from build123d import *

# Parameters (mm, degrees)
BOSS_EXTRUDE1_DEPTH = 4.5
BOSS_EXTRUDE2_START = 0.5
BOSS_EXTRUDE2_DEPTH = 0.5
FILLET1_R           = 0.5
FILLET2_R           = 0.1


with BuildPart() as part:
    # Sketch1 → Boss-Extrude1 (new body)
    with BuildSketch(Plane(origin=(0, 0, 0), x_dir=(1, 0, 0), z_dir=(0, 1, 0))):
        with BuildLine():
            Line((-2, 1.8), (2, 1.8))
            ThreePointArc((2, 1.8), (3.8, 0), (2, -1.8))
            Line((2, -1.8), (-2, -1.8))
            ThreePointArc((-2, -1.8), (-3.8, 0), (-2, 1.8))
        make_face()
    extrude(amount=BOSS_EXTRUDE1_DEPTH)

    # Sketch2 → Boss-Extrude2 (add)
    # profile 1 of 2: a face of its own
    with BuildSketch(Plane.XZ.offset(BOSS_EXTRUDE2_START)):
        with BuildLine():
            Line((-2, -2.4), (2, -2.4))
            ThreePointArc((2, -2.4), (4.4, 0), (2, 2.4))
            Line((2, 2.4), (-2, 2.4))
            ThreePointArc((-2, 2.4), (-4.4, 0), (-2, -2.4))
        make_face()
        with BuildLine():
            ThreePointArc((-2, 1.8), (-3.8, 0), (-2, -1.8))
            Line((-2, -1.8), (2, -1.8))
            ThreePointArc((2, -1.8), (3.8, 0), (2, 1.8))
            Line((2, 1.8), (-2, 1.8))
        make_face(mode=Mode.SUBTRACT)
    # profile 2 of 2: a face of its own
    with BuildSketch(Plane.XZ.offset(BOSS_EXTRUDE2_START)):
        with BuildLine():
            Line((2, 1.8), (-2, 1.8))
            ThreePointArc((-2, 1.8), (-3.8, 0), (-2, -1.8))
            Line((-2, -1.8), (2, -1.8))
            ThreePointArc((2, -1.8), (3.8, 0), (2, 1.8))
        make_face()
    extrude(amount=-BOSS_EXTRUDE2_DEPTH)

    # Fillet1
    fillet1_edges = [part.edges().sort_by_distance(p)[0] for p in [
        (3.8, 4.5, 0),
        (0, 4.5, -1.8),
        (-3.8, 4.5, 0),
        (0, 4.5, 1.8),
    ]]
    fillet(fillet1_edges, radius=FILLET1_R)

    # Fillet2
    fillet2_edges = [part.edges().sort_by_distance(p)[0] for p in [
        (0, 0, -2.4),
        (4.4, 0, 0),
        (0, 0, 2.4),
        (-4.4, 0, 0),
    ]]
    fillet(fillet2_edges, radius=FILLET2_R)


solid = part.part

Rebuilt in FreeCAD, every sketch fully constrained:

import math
import FreeCAD as App
import Part
import Sketcher


def edges_at(feature, points):
    """Names of the edges that pass closest to the given points."""
    edges = feature.Shape.Edges
    near = lambda p: min(range(len(edges)), key=lambda i: edges[i].distToShape(Part.Vertex(*p))[0])
    return sorted({f"Edge{near(p) + 1}" for p in points})

doc = App.newDocument("Part")
params = doc.addObject("Spreadsheet::Sheet", "Params")
for row, (alias, value) in enumerate([
    ("sketch1_radius", "1.8 mm"),
    ("sketch1_width", "4 mm"),
    ("pad1_length", "4.5 mm"),
    ("sketch2_radius", "2.4 mm"),
    ("sketch2_width", "4 mm"),
    ("pad2_length", "0.5 mm"),
    ("fillet_radius", "0.5 mm"),
    ("fillet2_radius", "0.1 mm"),
], start=1):
    params.set(f"A{row}", alias)
    params.set(f"B{row}", "=" + value)
    params.setAlias(f"B{row}", alias)

body = doc.addObject("PartDesign::Body", "Body")

sketch1 = body.newObject("Sketcher::SketchObject", "Sketch")
sketch1.AttachmentSupport = (doc.getObject("XZ_Plane"), [""])
sketch1.MapMode = "FlatFace"
sketch1.addGeometry([
    Part.LineSegment(App.Vector(2, -1.8, 0), App.Vector(-2, -1.8, 0)),
    Part.ArcOfCircle(Part.Circle(App.Vector(-2, 0, 0), App.Vector(0, 0, 1), 1.8), math.radians(90), math.radians(270)),
    Part.LineSegment(App.Vector(-2, 1.8, 0), App.Vector(2, 1.8, 0)),
    Part.ArcOfCircle(Part.Circle(App.Vector(2, 0, 0), App.Vector(0, 0, 1), 1.8), math.radians(-90), math.radians(90)),
], False)
sketch1.addConstraint([
    Sketcher.Constraint("Tangent", 0, 2, 1, 2),
    Sketcher.Constraint("Tangent", 1, 1, 2, 1),
    Sketcher.Constraint("Tangent", 2, 2, 3, 2),
    Sketcher.Constraint("Tangent", 3, 1, 0, 1),
    Sketcher.Constraint("Horizontal", 0),
    Sketcher.Constraint("Horizontal", 2),
    Sketcher.Constraint("Symmetric", 1, 3, 3, 3, -1, 1),
    Sketcher.Constraint("Radius", 1, 1.8),
    Sketcher.Constraint("DistanceX", 0, 2, 0, 1, 4.0),
])
sketch1.setExpression("Constraints[7]", "Params.sketch1_radius")
sketch1.setExpression("Constraints[8]", "Params.sketch1_width")
pad1 = body.newObject("PartDesign::Pad", "Pad")
pad1.Profile = sketch1
pad1.setExpression("Length", "Params.pad1_length")
pad1.Reversed = True

sketch2 = body.newObject("Sketcher::SketchObject", "Sketch001")
sketch2.AttachmentSupport = (doc.getObject("XZ_Plane"), [""])
sketch2.MapMode = "FlatFace"
sketch2.AttachmentOffset = App.Placement(App.Vector(0, 0, 0.5), App.Rotation())
sketch2.addGeometry([
    Part.LineSegment(App.Vector(-2, -2.4, 0), App.Vector(2, -2.4, 0)),
    Part.ArcOfCircle(Part.Circle(App.Vector(2, 0, 0), App.Vector(0, 0, 1), 2.4), math.radians(-90), math.radians(90)),
    Part.LineSegment(App.Vector(2, 2.4, 0), App.Vector(-2, 2.4, 0)),
    Part.ArcOfCircle(Part.Circle(App.Vector(-2, 0, 0), App.Vector(0, 0, 1), 2.4), math.radians(90), math.radians(270)),
], False)
sketch2.addConstraint([
    Sketcher.Constraint("Tangent", 0, 2, 1, 1),
    Sketcher.Constraint("Tangent", 1, 2, 2, 1),
    Sketcher.Constraint("Tangent", 2, 2, 3, 1),
    Sketcher.Constraint("Tangent", 3, 2, 0, 1),
    Sketcher.Constraint("Horizontal", 0),
    Sketcher.Constraint("Horizontal", 2),
    Sketcher.Constraint("Symmetric", 1, 3, 3, 3, -1, 1),
    Sketcher.Constraint("Radius", 1, 2.4),
    Sketcher.Constraint("DistanceX", 0, 1, 0, 2, 4.0),
])
sketch2.setExpression("Constraints[7]", "Params.sketch2_radius")
sketch2.setExpression("Constraints[8]", "Params.sketch2_width")
pad2 = body.newObject("PartDesign::Pad", "Pad001")
pad2.Profile = sketch2
pad2.setExpression("Length", "Params.pad2_length")
pad2.Reversed = True
doc.recompute()

fillet = body.newObject("PartDesign::Fillet", "Fillet")
fillet.Base = (pad2, edges_at(pad2, [
    (3.8, 4.5, 0),
    (0, 4.5, -1.8),
    (-3.8, 4.5, 0),
    (0, 4.5, 1.8),
]))
fillet.setExpression("Radius", "Params.fillet_radius")
doc.recompute()

fillet2 = body.newObject("PartDesign::Fillet", "Fillet001")
fillet2.Base = (fillet, edges_at(fillet, [
    (0, 0, -2.4),
    (4.4, 0, 0),
    (0, 0, 2.4),
    (-4.4, 0, 0),
]))
fillet2.setExpression("Radius", "Params.fillet2_radius")

doc.recompute()
